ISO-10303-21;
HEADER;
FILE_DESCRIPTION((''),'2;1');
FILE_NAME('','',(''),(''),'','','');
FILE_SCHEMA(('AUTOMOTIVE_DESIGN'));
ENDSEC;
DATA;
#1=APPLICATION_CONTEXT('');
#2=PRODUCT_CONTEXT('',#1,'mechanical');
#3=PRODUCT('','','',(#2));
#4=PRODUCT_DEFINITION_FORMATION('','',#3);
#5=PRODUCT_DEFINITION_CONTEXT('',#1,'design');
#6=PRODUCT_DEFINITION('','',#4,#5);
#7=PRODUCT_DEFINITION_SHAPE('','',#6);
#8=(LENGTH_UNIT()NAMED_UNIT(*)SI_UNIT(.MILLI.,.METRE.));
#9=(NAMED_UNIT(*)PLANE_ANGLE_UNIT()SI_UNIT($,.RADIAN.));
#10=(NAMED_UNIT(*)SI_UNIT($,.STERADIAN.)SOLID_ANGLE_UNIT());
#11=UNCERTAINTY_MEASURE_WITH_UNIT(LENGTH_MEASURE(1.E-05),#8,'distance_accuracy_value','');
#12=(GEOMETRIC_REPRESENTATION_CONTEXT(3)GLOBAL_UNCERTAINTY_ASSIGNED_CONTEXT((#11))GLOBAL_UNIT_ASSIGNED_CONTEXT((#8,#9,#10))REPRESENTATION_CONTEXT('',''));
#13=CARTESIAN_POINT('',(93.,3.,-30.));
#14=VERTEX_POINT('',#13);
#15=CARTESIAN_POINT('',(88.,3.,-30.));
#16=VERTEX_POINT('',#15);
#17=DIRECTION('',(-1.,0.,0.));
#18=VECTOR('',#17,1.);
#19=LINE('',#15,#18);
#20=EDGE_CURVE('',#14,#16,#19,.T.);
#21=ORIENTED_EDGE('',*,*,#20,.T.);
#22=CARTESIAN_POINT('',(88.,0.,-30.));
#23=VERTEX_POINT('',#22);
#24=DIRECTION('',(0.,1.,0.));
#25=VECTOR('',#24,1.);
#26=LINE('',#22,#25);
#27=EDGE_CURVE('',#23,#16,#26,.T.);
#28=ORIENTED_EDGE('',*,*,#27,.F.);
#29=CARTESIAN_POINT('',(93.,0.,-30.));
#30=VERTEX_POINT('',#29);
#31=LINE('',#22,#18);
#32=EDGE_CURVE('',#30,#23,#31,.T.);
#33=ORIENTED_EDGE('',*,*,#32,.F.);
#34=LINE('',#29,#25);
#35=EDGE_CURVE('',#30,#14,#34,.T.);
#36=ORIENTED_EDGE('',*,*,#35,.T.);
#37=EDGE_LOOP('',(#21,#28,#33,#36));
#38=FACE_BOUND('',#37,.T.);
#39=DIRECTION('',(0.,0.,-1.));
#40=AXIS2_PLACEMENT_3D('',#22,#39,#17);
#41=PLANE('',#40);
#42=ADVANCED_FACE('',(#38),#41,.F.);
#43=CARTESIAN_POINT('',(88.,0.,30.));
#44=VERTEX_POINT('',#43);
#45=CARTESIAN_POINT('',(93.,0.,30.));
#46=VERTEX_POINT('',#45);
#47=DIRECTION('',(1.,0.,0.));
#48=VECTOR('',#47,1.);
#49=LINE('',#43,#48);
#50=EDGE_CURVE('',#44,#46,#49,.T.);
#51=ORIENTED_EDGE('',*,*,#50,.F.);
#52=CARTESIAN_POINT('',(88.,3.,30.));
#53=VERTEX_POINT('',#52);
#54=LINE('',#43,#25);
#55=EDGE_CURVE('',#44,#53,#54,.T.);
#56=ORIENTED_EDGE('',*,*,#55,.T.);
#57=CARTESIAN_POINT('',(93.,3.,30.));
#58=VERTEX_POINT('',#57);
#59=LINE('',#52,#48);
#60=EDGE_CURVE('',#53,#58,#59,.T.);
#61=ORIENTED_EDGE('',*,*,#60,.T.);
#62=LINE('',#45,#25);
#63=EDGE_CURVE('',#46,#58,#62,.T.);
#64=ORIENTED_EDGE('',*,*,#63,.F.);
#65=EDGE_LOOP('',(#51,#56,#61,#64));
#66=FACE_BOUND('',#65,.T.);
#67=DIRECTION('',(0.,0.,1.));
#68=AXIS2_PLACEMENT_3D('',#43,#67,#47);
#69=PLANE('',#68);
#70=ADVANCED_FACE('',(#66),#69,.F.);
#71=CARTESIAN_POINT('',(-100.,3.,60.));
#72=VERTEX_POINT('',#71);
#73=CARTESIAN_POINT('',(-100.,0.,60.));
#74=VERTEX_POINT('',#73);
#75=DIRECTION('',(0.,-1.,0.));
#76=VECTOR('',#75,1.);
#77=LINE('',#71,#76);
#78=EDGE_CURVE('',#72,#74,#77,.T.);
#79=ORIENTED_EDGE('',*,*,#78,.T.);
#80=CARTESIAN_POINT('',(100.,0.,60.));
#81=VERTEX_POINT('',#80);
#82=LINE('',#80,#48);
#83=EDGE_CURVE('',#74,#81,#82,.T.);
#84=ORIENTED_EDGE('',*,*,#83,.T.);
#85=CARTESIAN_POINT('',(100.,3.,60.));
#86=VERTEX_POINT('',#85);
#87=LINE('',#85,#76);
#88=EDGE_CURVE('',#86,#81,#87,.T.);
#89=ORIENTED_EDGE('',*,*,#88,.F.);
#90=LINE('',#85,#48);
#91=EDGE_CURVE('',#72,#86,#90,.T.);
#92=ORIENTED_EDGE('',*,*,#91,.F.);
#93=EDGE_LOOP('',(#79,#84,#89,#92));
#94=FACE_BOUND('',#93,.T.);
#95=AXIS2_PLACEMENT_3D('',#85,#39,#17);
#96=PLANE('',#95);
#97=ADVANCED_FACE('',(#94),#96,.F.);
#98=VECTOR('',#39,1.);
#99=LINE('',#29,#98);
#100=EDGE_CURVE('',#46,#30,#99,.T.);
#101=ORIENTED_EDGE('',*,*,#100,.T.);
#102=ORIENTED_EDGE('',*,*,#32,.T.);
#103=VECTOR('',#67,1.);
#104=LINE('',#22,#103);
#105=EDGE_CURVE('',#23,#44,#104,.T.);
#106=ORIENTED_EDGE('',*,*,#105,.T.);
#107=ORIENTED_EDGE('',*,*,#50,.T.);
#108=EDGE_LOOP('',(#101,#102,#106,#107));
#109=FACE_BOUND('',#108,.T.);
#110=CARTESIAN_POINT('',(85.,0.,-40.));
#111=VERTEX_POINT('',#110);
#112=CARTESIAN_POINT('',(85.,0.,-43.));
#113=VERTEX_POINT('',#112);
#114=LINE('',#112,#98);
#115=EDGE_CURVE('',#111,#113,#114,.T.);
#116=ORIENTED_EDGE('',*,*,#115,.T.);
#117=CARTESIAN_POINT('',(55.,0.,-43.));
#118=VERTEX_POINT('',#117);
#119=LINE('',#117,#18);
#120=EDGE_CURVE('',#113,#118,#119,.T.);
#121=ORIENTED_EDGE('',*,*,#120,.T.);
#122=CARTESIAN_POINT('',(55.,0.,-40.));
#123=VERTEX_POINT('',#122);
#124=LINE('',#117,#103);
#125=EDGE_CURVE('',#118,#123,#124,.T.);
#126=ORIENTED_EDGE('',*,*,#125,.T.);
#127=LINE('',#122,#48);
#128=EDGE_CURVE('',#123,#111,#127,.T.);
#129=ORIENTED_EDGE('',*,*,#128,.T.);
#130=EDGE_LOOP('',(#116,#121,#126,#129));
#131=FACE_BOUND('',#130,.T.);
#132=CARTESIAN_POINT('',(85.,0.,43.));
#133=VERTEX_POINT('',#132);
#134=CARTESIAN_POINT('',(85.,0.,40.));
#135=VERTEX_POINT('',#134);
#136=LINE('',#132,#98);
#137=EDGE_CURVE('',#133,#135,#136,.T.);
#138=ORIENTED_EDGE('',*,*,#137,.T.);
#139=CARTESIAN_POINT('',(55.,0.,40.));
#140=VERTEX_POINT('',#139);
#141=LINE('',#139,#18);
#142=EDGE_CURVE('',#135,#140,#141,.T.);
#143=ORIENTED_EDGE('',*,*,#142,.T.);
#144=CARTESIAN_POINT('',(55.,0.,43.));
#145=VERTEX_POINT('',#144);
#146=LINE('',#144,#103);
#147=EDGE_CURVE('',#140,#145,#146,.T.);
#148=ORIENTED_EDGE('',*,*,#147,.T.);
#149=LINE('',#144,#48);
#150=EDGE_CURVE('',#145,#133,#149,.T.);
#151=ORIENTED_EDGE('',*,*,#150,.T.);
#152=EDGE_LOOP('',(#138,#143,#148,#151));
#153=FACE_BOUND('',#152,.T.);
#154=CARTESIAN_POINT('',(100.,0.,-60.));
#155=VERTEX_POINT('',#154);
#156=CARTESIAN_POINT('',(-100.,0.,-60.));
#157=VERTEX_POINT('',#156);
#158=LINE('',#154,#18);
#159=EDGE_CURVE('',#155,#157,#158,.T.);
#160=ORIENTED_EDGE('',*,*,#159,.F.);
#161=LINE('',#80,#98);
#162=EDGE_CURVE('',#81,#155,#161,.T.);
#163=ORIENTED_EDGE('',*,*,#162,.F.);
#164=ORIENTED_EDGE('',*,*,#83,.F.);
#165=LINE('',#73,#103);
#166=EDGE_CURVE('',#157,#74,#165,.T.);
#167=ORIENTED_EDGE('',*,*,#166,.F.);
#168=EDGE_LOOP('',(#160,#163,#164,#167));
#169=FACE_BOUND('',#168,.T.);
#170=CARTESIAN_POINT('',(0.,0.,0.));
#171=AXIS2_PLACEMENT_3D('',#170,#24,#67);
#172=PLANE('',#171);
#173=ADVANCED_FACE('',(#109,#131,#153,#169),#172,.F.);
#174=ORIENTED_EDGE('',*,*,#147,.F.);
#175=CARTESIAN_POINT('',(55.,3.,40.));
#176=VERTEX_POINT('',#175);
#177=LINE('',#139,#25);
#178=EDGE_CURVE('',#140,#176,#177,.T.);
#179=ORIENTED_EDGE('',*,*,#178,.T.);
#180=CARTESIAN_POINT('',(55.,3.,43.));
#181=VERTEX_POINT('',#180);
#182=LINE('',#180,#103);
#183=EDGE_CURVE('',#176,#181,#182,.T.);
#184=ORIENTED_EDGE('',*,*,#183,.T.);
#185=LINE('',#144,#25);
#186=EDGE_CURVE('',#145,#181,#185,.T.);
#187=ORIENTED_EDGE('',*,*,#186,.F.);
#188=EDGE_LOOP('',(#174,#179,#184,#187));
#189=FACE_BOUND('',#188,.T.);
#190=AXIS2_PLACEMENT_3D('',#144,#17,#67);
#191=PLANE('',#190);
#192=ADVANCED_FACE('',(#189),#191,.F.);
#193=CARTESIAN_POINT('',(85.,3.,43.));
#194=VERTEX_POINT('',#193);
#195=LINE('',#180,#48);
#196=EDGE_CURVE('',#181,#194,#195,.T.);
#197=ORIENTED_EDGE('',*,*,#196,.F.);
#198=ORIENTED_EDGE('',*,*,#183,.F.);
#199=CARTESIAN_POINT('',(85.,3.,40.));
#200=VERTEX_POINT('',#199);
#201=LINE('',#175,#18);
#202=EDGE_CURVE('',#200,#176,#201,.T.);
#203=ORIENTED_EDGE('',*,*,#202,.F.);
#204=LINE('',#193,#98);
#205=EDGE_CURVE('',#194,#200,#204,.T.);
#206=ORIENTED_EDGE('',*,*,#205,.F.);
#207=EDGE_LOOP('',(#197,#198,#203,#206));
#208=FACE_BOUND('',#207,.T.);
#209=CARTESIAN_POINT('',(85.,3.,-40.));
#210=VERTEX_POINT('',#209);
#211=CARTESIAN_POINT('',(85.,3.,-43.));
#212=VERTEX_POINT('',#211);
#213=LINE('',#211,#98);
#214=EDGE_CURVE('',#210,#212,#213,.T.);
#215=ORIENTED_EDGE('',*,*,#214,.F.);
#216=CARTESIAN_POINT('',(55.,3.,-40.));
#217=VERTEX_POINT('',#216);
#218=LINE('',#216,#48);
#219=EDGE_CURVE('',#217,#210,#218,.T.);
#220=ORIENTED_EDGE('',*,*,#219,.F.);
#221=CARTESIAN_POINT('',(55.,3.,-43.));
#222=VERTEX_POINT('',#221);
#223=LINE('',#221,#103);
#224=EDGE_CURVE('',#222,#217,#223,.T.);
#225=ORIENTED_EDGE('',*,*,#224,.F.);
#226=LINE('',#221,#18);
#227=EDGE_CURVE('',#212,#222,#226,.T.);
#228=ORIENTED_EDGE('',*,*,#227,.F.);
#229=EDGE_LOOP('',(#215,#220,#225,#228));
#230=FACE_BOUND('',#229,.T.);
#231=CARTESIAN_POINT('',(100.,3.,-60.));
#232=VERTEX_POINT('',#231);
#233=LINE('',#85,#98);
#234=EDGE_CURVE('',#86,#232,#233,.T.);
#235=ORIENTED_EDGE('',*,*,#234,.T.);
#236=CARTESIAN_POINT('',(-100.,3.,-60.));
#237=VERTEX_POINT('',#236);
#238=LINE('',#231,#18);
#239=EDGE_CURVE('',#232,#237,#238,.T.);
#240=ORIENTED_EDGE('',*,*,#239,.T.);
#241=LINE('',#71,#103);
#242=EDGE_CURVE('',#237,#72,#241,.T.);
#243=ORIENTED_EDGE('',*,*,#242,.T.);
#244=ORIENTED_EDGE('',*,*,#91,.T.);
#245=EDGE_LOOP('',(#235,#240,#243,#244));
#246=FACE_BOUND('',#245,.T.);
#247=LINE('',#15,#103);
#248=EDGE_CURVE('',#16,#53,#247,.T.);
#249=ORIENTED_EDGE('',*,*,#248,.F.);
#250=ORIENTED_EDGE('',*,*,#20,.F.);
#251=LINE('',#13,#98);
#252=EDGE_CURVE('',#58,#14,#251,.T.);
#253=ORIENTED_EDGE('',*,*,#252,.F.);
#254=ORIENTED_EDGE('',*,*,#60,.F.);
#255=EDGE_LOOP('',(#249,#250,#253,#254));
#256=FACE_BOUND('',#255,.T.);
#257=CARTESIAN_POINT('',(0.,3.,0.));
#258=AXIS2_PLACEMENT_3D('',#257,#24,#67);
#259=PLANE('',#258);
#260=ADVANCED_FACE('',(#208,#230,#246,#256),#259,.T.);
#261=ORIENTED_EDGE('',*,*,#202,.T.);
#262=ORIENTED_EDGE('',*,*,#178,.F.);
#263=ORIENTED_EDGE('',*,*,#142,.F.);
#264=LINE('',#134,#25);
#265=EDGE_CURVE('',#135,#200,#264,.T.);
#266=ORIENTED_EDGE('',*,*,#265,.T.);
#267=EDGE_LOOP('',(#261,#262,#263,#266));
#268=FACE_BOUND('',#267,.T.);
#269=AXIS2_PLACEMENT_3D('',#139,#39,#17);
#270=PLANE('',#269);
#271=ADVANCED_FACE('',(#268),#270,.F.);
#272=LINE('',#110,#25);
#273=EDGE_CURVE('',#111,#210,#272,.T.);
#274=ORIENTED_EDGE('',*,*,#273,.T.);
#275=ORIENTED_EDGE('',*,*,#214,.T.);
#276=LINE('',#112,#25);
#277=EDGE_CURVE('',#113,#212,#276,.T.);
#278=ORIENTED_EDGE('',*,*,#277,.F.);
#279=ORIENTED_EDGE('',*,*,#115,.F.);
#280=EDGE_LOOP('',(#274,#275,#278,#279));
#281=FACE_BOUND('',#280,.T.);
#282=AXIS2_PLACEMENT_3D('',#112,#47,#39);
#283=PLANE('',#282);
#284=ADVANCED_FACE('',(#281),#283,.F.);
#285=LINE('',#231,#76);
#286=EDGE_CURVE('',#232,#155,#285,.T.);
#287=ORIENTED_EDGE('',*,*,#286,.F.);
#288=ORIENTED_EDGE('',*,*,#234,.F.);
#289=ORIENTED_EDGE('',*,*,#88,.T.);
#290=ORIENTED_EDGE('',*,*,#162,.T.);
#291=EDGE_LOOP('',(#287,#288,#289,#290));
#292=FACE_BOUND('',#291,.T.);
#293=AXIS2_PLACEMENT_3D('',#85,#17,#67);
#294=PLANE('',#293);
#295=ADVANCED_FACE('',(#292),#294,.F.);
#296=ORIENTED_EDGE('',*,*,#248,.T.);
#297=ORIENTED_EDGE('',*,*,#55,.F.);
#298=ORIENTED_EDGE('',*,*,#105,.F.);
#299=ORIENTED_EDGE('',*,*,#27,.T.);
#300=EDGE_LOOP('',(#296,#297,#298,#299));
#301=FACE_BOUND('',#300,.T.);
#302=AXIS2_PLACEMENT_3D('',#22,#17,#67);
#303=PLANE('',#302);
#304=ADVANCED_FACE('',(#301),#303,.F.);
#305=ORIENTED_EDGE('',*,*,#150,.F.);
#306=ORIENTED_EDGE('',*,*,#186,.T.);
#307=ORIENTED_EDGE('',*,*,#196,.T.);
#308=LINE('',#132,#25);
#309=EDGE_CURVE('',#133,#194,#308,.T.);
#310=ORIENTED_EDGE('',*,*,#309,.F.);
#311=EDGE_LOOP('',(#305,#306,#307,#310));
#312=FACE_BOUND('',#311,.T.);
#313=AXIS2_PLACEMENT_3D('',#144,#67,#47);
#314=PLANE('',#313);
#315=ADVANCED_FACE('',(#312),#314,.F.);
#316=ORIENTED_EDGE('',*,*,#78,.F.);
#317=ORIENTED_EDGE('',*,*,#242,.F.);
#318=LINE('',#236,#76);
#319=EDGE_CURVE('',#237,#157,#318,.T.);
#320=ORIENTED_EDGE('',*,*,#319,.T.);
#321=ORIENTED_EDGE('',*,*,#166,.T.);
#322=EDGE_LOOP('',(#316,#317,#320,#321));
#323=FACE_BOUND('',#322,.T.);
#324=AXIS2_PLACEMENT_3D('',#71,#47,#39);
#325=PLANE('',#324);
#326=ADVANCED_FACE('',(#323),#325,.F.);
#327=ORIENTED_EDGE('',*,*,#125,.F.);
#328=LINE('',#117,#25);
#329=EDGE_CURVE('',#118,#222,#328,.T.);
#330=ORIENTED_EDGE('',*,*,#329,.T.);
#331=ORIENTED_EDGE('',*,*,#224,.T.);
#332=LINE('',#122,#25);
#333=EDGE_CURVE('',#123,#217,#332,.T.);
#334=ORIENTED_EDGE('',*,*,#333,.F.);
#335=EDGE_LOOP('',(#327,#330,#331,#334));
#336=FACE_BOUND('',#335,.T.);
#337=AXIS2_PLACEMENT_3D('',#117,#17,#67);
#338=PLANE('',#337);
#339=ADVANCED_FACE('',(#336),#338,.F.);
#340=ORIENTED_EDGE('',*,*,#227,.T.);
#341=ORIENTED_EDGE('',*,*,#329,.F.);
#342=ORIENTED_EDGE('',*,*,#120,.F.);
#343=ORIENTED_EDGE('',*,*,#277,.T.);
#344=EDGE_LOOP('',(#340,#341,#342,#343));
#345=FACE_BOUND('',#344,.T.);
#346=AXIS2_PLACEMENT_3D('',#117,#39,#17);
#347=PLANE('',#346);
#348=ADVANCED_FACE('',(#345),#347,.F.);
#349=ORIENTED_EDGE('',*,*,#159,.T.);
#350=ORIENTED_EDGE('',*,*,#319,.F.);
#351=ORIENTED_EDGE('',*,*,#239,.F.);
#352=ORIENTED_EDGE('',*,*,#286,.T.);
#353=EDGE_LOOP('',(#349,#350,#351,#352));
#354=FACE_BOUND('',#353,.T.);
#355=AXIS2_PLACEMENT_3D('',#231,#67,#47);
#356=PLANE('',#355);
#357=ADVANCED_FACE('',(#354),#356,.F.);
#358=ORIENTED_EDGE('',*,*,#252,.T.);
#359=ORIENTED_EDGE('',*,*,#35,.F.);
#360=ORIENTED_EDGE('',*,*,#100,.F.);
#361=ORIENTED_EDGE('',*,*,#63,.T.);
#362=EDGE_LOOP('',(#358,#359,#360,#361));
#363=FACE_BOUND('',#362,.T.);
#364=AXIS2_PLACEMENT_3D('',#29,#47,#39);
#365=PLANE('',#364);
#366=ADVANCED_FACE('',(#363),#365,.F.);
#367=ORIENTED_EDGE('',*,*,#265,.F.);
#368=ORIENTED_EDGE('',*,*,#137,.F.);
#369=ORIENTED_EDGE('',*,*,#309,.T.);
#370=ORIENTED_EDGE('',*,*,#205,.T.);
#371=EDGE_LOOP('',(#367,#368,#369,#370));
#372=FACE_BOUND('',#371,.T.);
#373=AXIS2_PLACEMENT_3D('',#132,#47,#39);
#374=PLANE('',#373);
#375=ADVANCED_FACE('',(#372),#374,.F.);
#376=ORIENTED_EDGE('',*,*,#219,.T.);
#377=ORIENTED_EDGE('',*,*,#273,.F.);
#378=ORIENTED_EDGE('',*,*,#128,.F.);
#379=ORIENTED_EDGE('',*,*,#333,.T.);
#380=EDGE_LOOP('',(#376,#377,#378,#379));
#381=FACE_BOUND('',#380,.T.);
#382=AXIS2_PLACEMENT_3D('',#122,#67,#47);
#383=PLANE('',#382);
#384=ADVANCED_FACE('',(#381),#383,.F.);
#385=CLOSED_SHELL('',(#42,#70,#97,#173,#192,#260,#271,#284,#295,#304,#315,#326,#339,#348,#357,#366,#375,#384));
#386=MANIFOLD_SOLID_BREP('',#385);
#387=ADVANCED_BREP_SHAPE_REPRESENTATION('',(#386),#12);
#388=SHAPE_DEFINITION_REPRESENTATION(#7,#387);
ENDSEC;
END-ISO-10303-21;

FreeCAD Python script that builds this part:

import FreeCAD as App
import Part
import Sketcher

doc = App.newDocument("Part")
body = doc.addObject("PartDesign::Body", "Body")

# Sketch on XZ plane
sketch1 = body.newObject("Sketcher::SketchObject", "Sketch")
sketch1.AttachmentSupport = (doc.getObject("XZ_Plane"), [""])
sketch1.MapMode = "FlatFace"
sketch1.addGeometry(Part.LineSegment(App.Vector(-100, -60, 0), App.Vector(-100, 60, 0)), False)
sketch1.addGeometry(Part.LineSegment(App.Vector(-100, 60, 0), App.Vector(100, 60, 0)), False)
sketch1.addGeometry(Part.LineSegment(App.Vector(100, 60, 0), App.Vector(100, -60, 0)), False)
sketch1.addGeometry(Part.LineSegment(App.Vector(100, -60, 0), App.Vector(-100, -60, 0)), False)
sketch1.addConstraint(Sketcher.Constraint("Coincident", 0, 2, 1, 1))
sketch1.addConstraint(Sketcher.Constraint("Coincident", 1, 2, 2, 1))
sketch1.addConstraint(Sketcher.Constraint("Coincident", 2, 2, 3, 1))
sketch1.addConstraint(Sketcher.Constraint("Coincident", 3, 2, 0, 1))
sketch1.addConstraint(Sketcher.Constraint("Vertical", 0))
sketch1.addConstraint(Sketcher.Constraint("Horizontal", 1))
sketch1.addConstraint(Sketcher.Constraint("Vertical", 2))
sketch1.addConstraint(Sketcher.Constraint("Horizontal", 3))
sketch1.addConstraint(Sketcher.Constraint("Symmetric", 0, 2, 2, 2, -1, 1))
sketch1.addConstraint(Sketcher.Constraint("DistanceX", 1, 1, 1, 2, 200.0))
sketch1.addConstraint(Sketcher.Constraint("DistanceY", 0, 1, 0, 2, 120.0))
pad1 = body.newObject("PartDesign::Pad", "Pad")
pad1.Profile = sketch1
pad1.Length = 3
pad1.Reversed = True

# Sketch on XZ plane
sketch2 = body.newObject("Sketcher::SketchObject", "Sketch001")
sketch2.AttachmentSupport = (doc.getObject("XZ_Plane"), [""])
sketch2.MapMode = "FlatFace"
sketch2.AttachmentOffset = App.Placement(App.Vector(0, 0, -3), App.Rotation())
sketch2.addGeometry(Part.LineSegment(App.Vector(88, -30, 0), App.Vector(88, 30, 0)), False)
sketch2.addGeometry(Part.LineSegment(App.Vector(88, 30, 0), App.Vector(93, 30, 0)), False)
sketch2.addGeometry(Part.LineSegment(App.Vector(93, 30, 0), App.Vector(93, -30, 0)), False)
sketch2.addGeometry(Part.LineSegment(App.Vector(93, -30, 0), App.Vector(88, -30, 0)), False)
sketch2.addConstraint(Sketcher.Constraint("Coincident", 0, 2, 1, 1))
sketch2.addConstraint(Sketcher.Constraint("Coincident", 1, 2, 2, 1))
sketch2.addConstraint(Sketcher.Constraint("Coincident", 2, 2, 3, 1))
sketch2.addConstraint(Sketcher.Constraint("Coincident", 3, 2, 0, 1))
sketch2.addConstraint(Sketcher.Constraint("Vertical", 0))
sketch2.addConstraint(Sketcher.Constraint("Horizontal", 1))
sketch2.addConstraint(Sketcher.Constraint("Vertical", 2))
sketch2.addConstraint(Sketcher.Constraint("Horizontal", 3))
sketch2.addConstraint(Sketcher.Constraint("DistanceX", 1, 1, 1, 2, 5.0))
sketch2.addConstraint(Sketcher.Constraint("DistanceY", 0, 1, 0, 2, 60.0))
sketch2.addConstraint(Sketcher.Constraint("DistanceX", -1, 1, 0, 2, 88.0))
sketch2.addConstraint(Sketcher.Constraint("DistanceY", -1, 1, 0, 2, 30.0))
pocket1 = body.newObject("PartDesign::Pocket", "Pocket")
pocket1.Profile = sketch2
pocket1.Type = "ThroughAll"
pocket1.Reversed = True

# Sketch on XZ plane
sketch3 = body.newObject("Sketcher::SketchObject", "Sketch002")
sketch3.AttachmentSupport = (doc.getObject("XZ_Plane"), [""])
sketch3.MapMode = "FlatFace"
sketch3.AttachmentOffset = App.Placement(App.Vector(0, 0, -3), App.Rotation())
sketch3.addGeometry(Part.LineSegment(App.Vector(55, -43, 0), App.Vector(55, -40, 0)), False)
sketch3.addGeometry(Part.LineSegment(App.Vector(55, -40, 0), App.Vector(85, -40, 0)), False)
sketch3.addGeometry(Part.LineSegment(App.Vector(85, -40, 0), App.Vector(85, -43, 0)), False)
sketch3.addGeometry(Part.LineSegment(App.Vector(85, -43, 0), App.Vector(55, -43, 0)), False)
sketch3.addGeometry(Part.LineSegment(App.Vector(55, 40, 0), App.Vector(55, 43, 0)), False)
sketch3.addGeometry(Part.LineSegment(App.Vector(55, 43, 0), App.Vector(85, 43, 0)), False)
sketch3.addGeometry(Part.LineSegment(App.Vector(85, 43, 0), App.Vector(85, 40, 0)), False)
sketch3.addGeometry(Part.LineSegment(App.Vector(85, 40, 0), App.Vector(55, 40, 0)), False)
sketch3.addConstraint(Sketcher.Constraint("Coincident", 0, 2, 1, 1))
sketch3.addConstraint(Sketcher.Constraint("Coincident", 1, 2, 2, 1))
sketch3.addConstraint(Sketcher.Constraint("Coincident", 2, 2, 3, 1))
sketch3.addConstraint(Sketcher.Constraint("Coincident", 3, 2, 0, 1))
sketch3.addConstraint(Sketcher.Constraint("Coincident", 4, 2, 5, 1))
sketch3.addConstraint(Sketcher.Constraint("Coincident", 5, 2, 6, 1))
sketch3.addConstraint(Sketcher.Constraint("Coincident", 6, 2, 7, 1))
sketch3.addConstraint(Sketcher.Constraint("Coincident", 7, 2, 4, 1))
sketch3.addConstraint(Sketcher.Constraint("Vertical", 0))
sketch3.addConstraint(Sketcher.Constraint("Horizontal", 1))
sketch3.addConstraint(Sketcher.Constraint("Vertical", 2))
sketch3.addConstraint(Sketcher.Constraint("Horizontal", 3))
sketch3.addConstraint(Sketcher.Constraint("Vertical", 4))
sketch3.addConstraint(Sketcher.Constraint("Horizontal", 5))
sketch3.addConstraint(Sketcher.Constraint("Vertical", 6))
sketch3.addConstraint(Sketcher.Constraint("Horizontal", 7))
sketch3.addConstraint(Sketcher.Constraint("Symmetric", 3, 2, 4, 2, -1))
sketch3.addConstraint(Sketcher.Constraint("Symmetric", 1, 2, 6, 2, -1))
sketch3.addConstraint(Sketcher.Constraint("DistanceX", 1, 1, 1, 2, 30.0))
sketch3.addConstraint(Sketcher.Constraint("DistanceY", 0, 1, 0, 2, 3.0))
sketch3.addConstraint(Sketcher.Constraint("DistanceX", -1, 1, 0, 2, 55.0))
sketch3.addConstraint(Sketcher.Constraint("DistanceY", 0, 2, -1, 1, 40.0))
pocket2 = body.newObject("PartDesign::Pocket", "Pocket001")
pocket2.Profile = sketch3
pocket2.Type = "ThroughAll"
pocket2.Reversed = True

doc.recompute()
